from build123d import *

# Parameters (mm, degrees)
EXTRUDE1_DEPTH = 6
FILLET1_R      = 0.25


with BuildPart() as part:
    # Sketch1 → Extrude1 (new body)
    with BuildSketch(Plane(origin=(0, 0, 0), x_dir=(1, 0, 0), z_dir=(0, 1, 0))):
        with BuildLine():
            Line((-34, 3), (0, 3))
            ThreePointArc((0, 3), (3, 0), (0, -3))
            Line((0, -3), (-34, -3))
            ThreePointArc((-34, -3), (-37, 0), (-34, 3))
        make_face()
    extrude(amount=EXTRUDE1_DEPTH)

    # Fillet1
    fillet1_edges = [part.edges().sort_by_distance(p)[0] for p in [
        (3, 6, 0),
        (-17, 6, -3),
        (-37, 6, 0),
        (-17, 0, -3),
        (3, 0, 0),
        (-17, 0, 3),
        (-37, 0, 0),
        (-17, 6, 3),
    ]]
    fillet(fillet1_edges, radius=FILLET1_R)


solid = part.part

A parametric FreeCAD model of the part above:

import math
import FreeCAD as App
import Part
import Sketcher

V = App.Vector
Q = App.Units.Quantity


def edges_at(feature, points):
    """Names of the edges that pass closest to the given points."""
    edges = feature.Shape.Edges
    near = lambda p: min(range(len(edges)), key=lambda i: edges[i].distToShape(Part.Vertex(*p))[0])
    return sorted({f"Edge{near(p) + 1}" for p in points})

doc = App.newDocument("Part")
body = doc.addObject("PartDesign::Body", "Body")

# Sketch on XZ plane
sketch1 = doc.addObject("Sketcher::SketchObject", "Sketch")
body.addObject(sketch1)
sketch1.AttachmentSupport = (doc.XZ_Plane, [""])
sketch1.MapMode = "FlatFace"
sketch1.addGeometry([
    Part.LineSegment(V(0, -3, 0), V(-34, -3, 0)),
    Part.ArcOfCircle(Part.Circle(V(-34, 0, 0), V(0, 0, 1), 3), math.radians(90), math.radians(270)),
    Part.LineSegment(V(-34, 3, 0), V(0, 3, 0)),
    Part.ArcOfCircle(Part.Circle(V(0, 0, 0), V(0, 0, 1), 3), math.radians(-90), math.radians(90)),
], False)
sketch1.addConstraint([
    Sketcher.Constraint("Tangent", 0, 2, 1, 2),
    Sketcher.Constraint("Tangent", 1, 1, 2, 1),
    Sketcher.Constraint("Tangent", 2, 2, 3, 2),
    Sketcher.Constraint("Tangent", 3, 1, 0, 1),
    Sketcher.Constraint("Horizontal", 0),
    Sketcher.Constraint("Horizontal", 2),
    Sketcher.Constraint("Coincident", 3, 3, -1, 1),
    Sketcher.Constraint("Radius", 1, Q("3 mm")),
    Sketcher.Constraint("DistanceX", 0, 2, 0, 1, Q("34 mm")),
])
pad1 = doc.addObject("PartDesign::Pad", "Pad")
body.addObject(pad1)
pad1.Profile = sketch1
pad1.Length = 6
pad1.Reversed = True
doc.recompute()

fillet = doc.addObject("PartDesign::Fillet", "Fillet")
body.addObject(fillet)
fillet.Base = (pad1, edges_at(pad1, [
    (3, 6, 0),
    (-17, 6, -3),
    (-37, 6, 0),
    (-17, 0, -3),
    (3, 0, 0),
    (-17, 0, 3),
    (-37, 0, 0),
    (-17, 6, 3),
]))
fillet.Radius = 0.25

doc.recompute()
